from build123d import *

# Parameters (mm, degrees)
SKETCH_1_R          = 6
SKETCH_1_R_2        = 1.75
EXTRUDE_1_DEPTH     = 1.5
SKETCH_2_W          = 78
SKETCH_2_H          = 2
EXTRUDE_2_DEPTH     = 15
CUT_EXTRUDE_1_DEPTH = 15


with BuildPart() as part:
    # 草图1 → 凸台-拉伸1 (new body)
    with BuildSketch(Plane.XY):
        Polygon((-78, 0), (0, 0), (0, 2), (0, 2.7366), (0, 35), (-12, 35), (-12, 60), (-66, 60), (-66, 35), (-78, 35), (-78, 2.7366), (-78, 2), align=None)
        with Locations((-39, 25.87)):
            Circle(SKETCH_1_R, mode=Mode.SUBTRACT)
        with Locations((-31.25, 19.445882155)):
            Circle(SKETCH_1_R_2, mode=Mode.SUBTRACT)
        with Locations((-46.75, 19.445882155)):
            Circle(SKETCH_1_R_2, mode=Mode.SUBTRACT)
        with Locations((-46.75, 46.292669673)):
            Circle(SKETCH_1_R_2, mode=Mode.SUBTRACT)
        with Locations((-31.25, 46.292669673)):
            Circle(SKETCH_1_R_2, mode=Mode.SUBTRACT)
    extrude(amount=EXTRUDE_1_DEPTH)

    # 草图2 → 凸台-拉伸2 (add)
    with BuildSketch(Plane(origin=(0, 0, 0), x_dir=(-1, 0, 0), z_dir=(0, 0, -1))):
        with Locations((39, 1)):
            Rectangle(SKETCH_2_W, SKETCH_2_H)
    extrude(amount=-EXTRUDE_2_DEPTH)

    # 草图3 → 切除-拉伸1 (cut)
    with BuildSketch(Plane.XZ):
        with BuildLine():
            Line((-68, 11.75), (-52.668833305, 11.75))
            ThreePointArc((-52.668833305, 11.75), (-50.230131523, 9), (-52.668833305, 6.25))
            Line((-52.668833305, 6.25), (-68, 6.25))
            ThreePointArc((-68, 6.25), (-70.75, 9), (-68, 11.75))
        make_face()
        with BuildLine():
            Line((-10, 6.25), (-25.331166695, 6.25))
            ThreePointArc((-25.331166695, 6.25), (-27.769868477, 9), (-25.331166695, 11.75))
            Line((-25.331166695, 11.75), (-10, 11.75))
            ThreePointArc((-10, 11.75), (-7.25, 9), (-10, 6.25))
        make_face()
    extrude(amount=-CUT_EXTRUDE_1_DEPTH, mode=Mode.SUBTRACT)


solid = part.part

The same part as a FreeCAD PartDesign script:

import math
import FreeCAD as App
import Part
import Sketcher
Q = App.Units.Quantity

doc = App.newDocument("Part")
body = doc.addObject("PartDesign::Body", "Body")

sketch1 = doc.addObject("Sketcher::SketchObject", "Sketch")
body.addObject(sketch1)
sketch1.AttachmentSupport = (doc.XY_Plane, [""])
sketch1.MapMode = "FlatFace"
sketch1.addGeometry(Part.LineSegment(App.Vector(-78, 0, 0), App.Vector(0, 0, 0)), False)
sketch1.addGeometry(Part.LineSegment(App.Vector(0, 0, 0), App.Vector(0, 35, 0)), False)
sketch1.addGeometry(Part.LineSegment(App.Vector(0, 35, 0), App.Vector(-12, 35, 0)), False)
sketch1.addGeometry(Part.LineSegment(App.Vector(-12, 35, 0), App.Vector(-12, 60, 0)), False)
sketch1.addGeometry(Part.LineSegment(App.Vector(-12, 60, 0), App.Vector(-66, 60, 0)), False)
sketch1.addGeometry(Part.LineSegment(App.Vector(-66, 60, 0), App.Vector(-66, 35, 0)), False)
sketch1.addGeometry(Part.LineSegment(App.Vector(-66, 35, 0), App.Vector(-78, 35, 0)), False)
sketch1.addGeometry(Part.LineSegment(App.Vector(-78, 35, 0), App.Vector(-78, 0, 0)), False)
sketch1.addGeometry(Part.Circle(App.Vector(-46.8, 19.4, 0), App.Vector(0, 0, 1), 1.8), False)
sketch1.addGeometry(Part.Circle(App.Vector(-31.2, 19.4, 0), App.Vector(0, 0, 1), 1.8), False)
sketch1.addGeometry(Part.Circle(App.Vector(-39, 25.9, 0), App.Vector(0, 0, 1), 6), False)
sketch1.addGeometry(Part.Circle(App.Vector(-46.8, 46.3, 0), App.Vector(0, 0, 1), 1.8), False)
sketch1.addGeometry(Part.Circle(App.Vector(-31.2, 46.3, 0), App.Vector(0, 0, 1), 1.8), False)
sketch1.addConstraint(Sketcher.Constraint("Coincident", 0, 2, 1, 1))
sketch1.addConstraint(Sketcher.Constraint("Coincident", 1, 2, 2, 1))
sketch1.addConstraint(Sketcher.Constraint("Coincident", 2, 2, 3, 1))
sketch1.addConstraint(Sketcher.Constraint("Coincident", 3, 2, 4, 1))
sketch1.addConstraint(Sketcher.Constraint("Coincident", 4, 2, 5, 1))
sketch1.addConstraint(Sketcher.Constraint("Coincident", 5, 2, 6, 1))
sketch1.addConstraint(Sketcher.Constraint("Coincident", 6, 2, 7, 1))
sketch1.addConstraint(Sketcher.Constraint("Coincident", 7, 2, 0, 1))
sketch1.addConstraint(Sketcher.Constraint("Horizontal", 0))
sketch1.addConstraint(Sketcher.Constraint("Vertical", 1))
sketch1.addConstraint(Sketcher.Constraint("Horizontal", 2))
sketch1.addConstraint(Sketcher.Constraint("Vertical", 3))
sketch1.addConstraint(Sketcher.Constraint("Horizontal", 4))
sketch1.addConstraint(Sketcher.Constraint("Vertical", 5))
sketch1.addConstraint(Sketcher.Constraint("Horizontal", 6))
sketch1.addConstraint(Sketcher.Constraint("Vertical", 7))
sketch1.addConstraint(Sketcher.Constraint("Coincident", 0, 2, -1, 1))
sketch1.addConstraint(Sketcher.Constraint("Equal", 8, 9))
sketch1.addConstraint(Sketcher.Constraint("Equal", 9, 11))
sketch1.addConstraint(Sketcher.Constraint("Equal", 11, 12))
sketch1.addConstraint(Sketcher.Constraint("Horizontal", 8, 3, 9, 3))
sketch1.addConstraint(Sketcher.Constraint("Horizontal", 11, 3, 12, 3))
sketch1.addConstraint(Sketcher.Constraint("Horizontal", 2, 2, 5, 2))
sketch1.addConstraint(Sketcher.Constraint("Vertical", 8, 3, 11, 3))
sketch1.addConstraint(Sketcher.Constraint("Vertical", 9, 3, 12, 3))
sketch1.addConstraint(Sketcher.Constraint("Equal", 2, 6))
sketch1.addConstraint(Sketcher.Constraint("Diameter", 10, Q("12 mm")))
sketch1.addConstraint(Sketcher.Constraint("Diameter", 8, Q("3.5 mm")))
sketch1.addConstraint(Sketcher.Constraint("DistanceX", 0, 1, 0, 2, Q("78 mm")))
sketch1.addConstraint(Sketcher.Constraint("DistanceX", 2, 2, 2, 1, Q("12 mm")))
sketch1.addConstraint(Sketcher.Constraint("DistanceY", 1, 1, 1, 2, Q("35 mm")))
sketch1.addConstraint(Sketcher.Constraint("DistanceY", 3, 1, 3, 2, Q("25 mm")))
sketch1.addConstraint(Sketcher.Constraint("DistanceX", 10, 3, -1, 1, Q("39 mm")))
sketch1.addConstraint(Sketcher.Constraint("DistanceX", 8, 3, 9, 3, Q("15.5 mm")))
sketch1.addConstraint(Sketcher.Constraint("DistanceX", 8, 3, -1, 1, Q("46.75 mm")))
sketch1.addConstraint(Sketcher.Constraint("DistanceY", -1, 1, 10, 3, Q("25.87 mm")))
sketch1.addConstraint(Sketcher.Constraint("DistanceY", -1, 1, 11, 3, Q("46.29267 mm")))
sketch1.addConstraint(Sketcher.Constraint("DistanceY", -1, 1, 8, 3, Q("19.445882 mm")))
pad1 = doc.addObject("PartDesign::Pad", "Pad")
body.addObject(pad1)
pad1.Profile = sketch1
pad1.Length = 1.5

sketch2 = doc.addObject("Sketcher::SketchObject", "Sketch001")
body.addObject(sketch2)
sketch2.AttachmentSupport = (doc.XY_Plane, [""])
sketch2.MapMode = "FlatFace"
sketch2.addGeometry(Part.LineSegment(App.Vector(0, 2, 0), App.Vector(0, 0, 0)), False)
sketch2.addGeometry(Part.LineSegment(App.Vector(0, 0, 0), App.Vector(-78, 0, 0)), False)
sketch2.addGeometry(Part.LineSegment(App.Vector(-78, 0, 0), App.Vector(-78, 2, 0)), False)
sketch2.addGeometry(Part.LineSegment(App.Vector(-78, 2, 0), App.Vector(0, 2, 0)), False)
sketch2.addConstraint(Sketcher.Constraint("Coincident", 0, 2, 1, 1))
sketch2.addConstraint(Sketcher.Constraint("Coincident", 1, 2, 2, 1))
sketch2.addConstraint(Sketcher.Constraint("Coincident", 2, 2, 3, 1))
sketch2.addConstraint(Sketcher.Constraint("Coincident", 3, 2, 0, 1))
sketch2.addConstraint(Sketcher.Constraint("Vertical", 0))
sketch2.addConstraint(Sketcher.Constraint("Horizontal", 1))
sketch2.addConstraint(Sketcher.Constraint("Vertical", 2))
sketch2.addConstraint(Sketcher.Constraint("Horizontal", 3))
sketch2.addConstraint(Sketcher.Constraint("Coincident", 0, 2, -1, 1))
sketch2.addConstraint(Sketcher.Constraint("DistanceX", 1, 2, 1, 1, Q("78 mm")))
sketch2.addConstraint(Sketcher.Constraint("DistanceY", 0, 2, 0, 1, Q("2 mm")))
pad2 = doc.addObject("PartDesign::Pad", "Pad001")
body.addObject(pad2)
pad2.Profile = sketch2
pad2.Length = 15

sketch3 = doc.addObject("Sketcher::SketchObject", "Sketch002")
body.addObject(sketch3)
sketch3.AttachmentSupport = (doc.XZ_Plane, [""])
sketch3.MapMode = "FlatFace"
sketch3.addGeometry(Part.LineSegment(App.Vector(-52.7, 11.8, 0), App.Vector(-68, 11.8, 0)), False)
sketch3.addGeometry(Part.ArcOfCircle(Part.Circle(App.Vector(-68, 9, 0), App.Vector(0, 0, 1), 2.8), math.radians(90), math.radians(270)), False)
sketch3.addGeometry(Part.LineSegment(App.Vector(-68, 6.2, 0), App.Vector(-52.7, 6.2, 0)), False)
sketch3.addGeometry(Part.ArcOfCircle(Part.Circle(App.Vector(-53, 9, 0), App.Vector(0, 0, 1), 2.8), math.radians(-83), math.radians(83)), False)
sketch3.addGeometry(Part.LineSegment(App.Vector(-25.3, 6.2, 0), App.Vector(-10, 6.2, 0)), False)
sketch3.addGeometry(Part.ArcOfCircle(Part.Circle(App.Vector(-10, 9, 0), App.Vector(0, 0, 1), 2.8), math.radians(-90), math.radians(90)), False)
sketch3.addGeometry(Part.LineSegment(App.Vector(-10, 11.8, 0), App.Vector(-25.3, 11.8, 0)), False)
sketch3.addGeometry(Part.ArcOfCircle(Part.Circle(App.Vector(-25, 9, 0), App.Vector(0, 0, 1), 2.8), math.radians(97), math.radians(263)), False)
sketch3.addConstraint(Sketcher.Constraint("Tangent", 0, 2, 1, 1))
sketch3.addConstraint(Sketcher.Constraint("Tangent", 1, 2, 2, 1))
sketch3.addConstraint(Sketcher.Constraint("Coincident", 2, 2, 3, 1))
sketch3.addConstraint(Sketcher.Constraint("Coincident", 3, 2, 0, 1))
sketch3.addConstraint(Sketcher.Constraint("Tangent", 4, 2, 5, 1))
sketch3.addConstraint(Sketcher.Constraint("Tangent", 5, 2, 6, 1))
sketch3.addConstraint(Sketcher.Constraint("Coincident", 6, 2, 7, 1))
sketch3.addConstraint(Sketcher.Constraint("Coincident", 7, 2, 4, 1))
sketch3.addConstraint(Sketcher.Constraint("Horizontal", 0))
sketch3.addConstraint(Sketcher.Constraint("Horizontal", 2))
sketch3.addConstraint(Sketcher.Constraint("Horizontal", 4))
sketch3.addConstraint(Sketcher.Constraint("Horizontal", 6))
sketch3.addConstraint(Sketcher.Constraint("Equal", 1, 5))
sketch3.addConstraint(Sketcher.Constraint("Equal", 3, 7))
sketch3.addConstraint(Sketcher.Constraint("Horizontal", 1, 3, 3, 3))
sketch3.addConstraint(Sketcher.Constraint("Horizontal", 3, 3, 5, 3))
sketch3.addConstraint(Sketcher.Constraint("Horizontal", 5, 3, 7, 3))
sketch3.addConstraint(Sketcher.Constraint("Equal", 2, 4))
sketch3.addConstraint(Sketcher.Constraint("Radius", 1, Q("2.75 mm")))
sketch3.addConstraint(Sketcher.Constraint("DistanceX", 1, 3, -1, 1, Q("68 mm")))
sketch3.addConstraint(Sketcher.Constraint("DistanceY", -1, 1, 1, 3, Q("9 mm")))
sketch3.addConstraint(Sketcher.Constraint("DistanceX", 3, 3, -1, 1, Q("53 mm")))
sketch3.addConstraint(Sketcher.Constraint("DistanceX", 5, 3, -1, 1, Q("10 mm")))
sketch3.addConstraint(Sketcher.Constraint("Radius", 3, Q("2.769868 mm")))
pocket1 = doc.addObject("PartDesign::Pocket", "Pocket")
body.addObject(pocket1)
pocket1.Profile = sketch3
pocket1.Length = 15

doc.recompute()
